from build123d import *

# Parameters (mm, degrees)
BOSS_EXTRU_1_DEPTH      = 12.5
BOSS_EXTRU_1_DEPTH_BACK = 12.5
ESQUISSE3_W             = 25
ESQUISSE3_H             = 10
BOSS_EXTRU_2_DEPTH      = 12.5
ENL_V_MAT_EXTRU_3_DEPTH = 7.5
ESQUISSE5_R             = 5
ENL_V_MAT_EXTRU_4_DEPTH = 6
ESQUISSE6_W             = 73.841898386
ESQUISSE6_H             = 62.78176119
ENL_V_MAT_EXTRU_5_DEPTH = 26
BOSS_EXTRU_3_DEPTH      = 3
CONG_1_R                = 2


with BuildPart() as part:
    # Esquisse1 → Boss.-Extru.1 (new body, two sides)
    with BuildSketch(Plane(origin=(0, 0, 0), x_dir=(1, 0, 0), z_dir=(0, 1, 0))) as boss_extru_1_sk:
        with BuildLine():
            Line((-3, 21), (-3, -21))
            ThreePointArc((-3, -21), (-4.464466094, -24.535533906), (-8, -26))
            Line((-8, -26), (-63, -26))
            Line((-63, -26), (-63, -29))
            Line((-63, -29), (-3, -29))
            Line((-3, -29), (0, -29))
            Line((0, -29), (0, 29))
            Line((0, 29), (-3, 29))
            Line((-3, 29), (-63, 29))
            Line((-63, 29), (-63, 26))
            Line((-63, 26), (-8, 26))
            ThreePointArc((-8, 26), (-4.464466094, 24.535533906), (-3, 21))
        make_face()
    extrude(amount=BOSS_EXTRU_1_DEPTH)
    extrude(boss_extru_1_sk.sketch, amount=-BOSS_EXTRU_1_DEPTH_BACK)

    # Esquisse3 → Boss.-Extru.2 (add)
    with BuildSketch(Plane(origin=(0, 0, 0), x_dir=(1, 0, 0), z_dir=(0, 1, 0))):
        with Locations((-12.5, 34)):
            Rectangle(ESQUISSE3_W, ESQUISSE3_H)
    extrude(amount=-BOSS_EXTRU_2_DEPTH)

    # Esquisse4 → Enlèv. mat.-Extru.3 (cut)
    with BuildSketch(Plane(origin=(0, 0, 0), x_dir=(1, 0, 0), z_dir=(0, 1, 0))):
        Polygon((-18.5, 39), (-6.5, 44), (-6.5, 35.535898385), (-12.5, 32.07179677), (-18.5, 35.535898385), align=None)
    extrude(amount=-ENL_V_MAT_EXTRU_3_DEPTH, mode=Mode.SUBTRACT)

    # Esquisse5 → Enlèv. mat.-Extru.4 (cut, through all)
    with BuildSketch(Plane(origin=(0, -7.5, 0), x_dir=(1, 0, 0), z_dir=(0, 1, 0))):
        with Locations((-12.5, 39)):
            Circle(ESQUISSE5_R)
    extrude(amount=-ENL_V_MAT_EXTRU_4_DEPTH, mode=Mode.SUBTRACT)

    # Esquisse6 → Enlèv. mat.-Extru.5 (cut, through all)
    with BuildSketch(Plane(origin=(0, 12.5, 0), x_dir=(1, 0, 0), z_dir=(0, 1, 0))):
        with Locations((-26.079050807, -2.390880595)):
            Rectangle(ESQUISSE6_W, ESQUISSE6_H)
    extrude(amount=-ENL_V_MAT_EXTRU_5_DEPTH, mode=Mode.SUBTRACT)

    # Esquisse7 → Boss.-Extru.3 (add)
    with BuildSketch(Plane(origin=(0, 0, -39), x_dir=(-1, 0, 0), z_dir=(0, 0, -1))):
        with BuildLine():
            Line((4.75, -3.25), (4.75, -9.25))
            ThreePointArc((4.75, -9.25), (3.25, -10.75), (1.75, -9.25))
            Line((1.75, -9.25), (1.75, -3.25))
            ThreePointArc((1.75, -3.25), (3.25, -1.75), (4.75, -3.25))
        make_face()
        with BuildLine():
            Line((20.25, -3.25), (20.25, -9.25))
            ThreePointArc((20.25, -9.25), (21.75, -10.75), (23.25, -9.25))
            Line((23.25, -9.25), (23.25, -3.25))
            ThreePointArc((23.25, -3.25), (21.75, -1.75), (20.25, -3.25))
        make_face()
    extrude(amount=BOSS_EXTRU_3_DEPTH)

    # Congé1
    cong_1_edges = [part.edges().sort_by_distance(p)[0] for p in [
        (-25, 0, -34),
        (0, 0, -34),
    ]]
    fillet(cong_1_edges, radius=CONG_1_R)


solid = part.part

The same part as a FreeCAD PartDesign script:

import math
import FreeCAD as App
import Part
import Sketcher
from FreeCAD import Vector
Q = App.Units.Quantity


def edges_at(feature, points):
    """Names of the edges that pass closest to the given points."""
    edges = feature.Shape.Edges
    near = lambda p: min(range(len(edges)), key=lambda i: edges[i].distToShape(Part.Vertex(*p))[0])
    return sorted({f"Edge{near(p) + 1}" for p in points})

doc = App.newDocument("Part")
params = doc.addObject("Spreadsheet::Sheet", "Params")
for row, (alias, value) in enumerate([
    ("sketch1_radius", "5 mm"),
    ("sketch1_width", "55 mm"),
    ("sketch1_width2", "63 mm"),
    ("sketch1_height", "42 mm"),
    ("sketch1_height2", "3 mm"),
    ("pad1_length", "12.5 mm"),
    ("pad1_length2", "12.5 mm"),
    ("sketch2_width", "25 mm"),
    ("sketch2_height", "10 mm"),
    ("pad2_length", "12.5 mm"),
    ("sketch3_length", "13 mm"),
    ("pocket1_length", "7.5 mm"),
    ("sketch4_diameter", "10 mm"),
    ("sketch6_radius", "1.5 mm"),
    ("sketch6_height", "6 mm"),
    ("pad3_length", "3 mm"),
    ("fillet_radius", "2 mm"),
], start=1):
    params.set(f"A{row}", alias)
    params.set(f"B{row}", "=" + value)
    params.setAlias(f"B{row}", alias)

body = doc.addObject("PartDesign::Body", "Body")

# Sketch on XZ plane
sketch1 = body.newObject("Sketcher::SketchObject", "Sketch")
sketch1.AttachmentSupport = (doc.getObject("XZ_Plane"), [""])
sketch1.MapMode = "FlatFace"
sketch1.addGeometry([
    Part.LineSegment(Vector(-3, -21, 0), Vector(-3, 21, 0)),  # 0
    Part.ArcOfCircle(Part.Circle(Vector(-8, 21, 0), Vector(0, 0, 1), 5), math.radians(0), math.radians(90)),  # 1
    Part.LineSegment(Vector(-8, 26, 0), Vector(-63, 26, 0)),  # 2
    Part.LineSegment(Vector(-63, 26, 0), Vector(-63, 29, 0)),  # 3
    Part.LineSegment(Vector(-63, 29, 0), Vector(0, 29, 0)),  # 4
    Part.LineSegment(Vector(0, 29, 0), Vector(0, -29, 0)),  # 5
    Part.LineSegment(Vector(0, -29, 0), Vector(-63, -29, 0)),  # 6
    Part.LineSegment(Vector(-63, -29, 0), Vector(-63, -26, 0)),  # 7
    Part.LineSegment(Vector(-63, -26, 0), Vector(-8, -26, 0)),  # 8
    Part.ArcOfCircle(Part.Circle(Vector(-8, -21, 0), Vector(0, 0, 1), 5), math.radians(-90), math.radians(0)),  # 9
], False)
sketch1.addConstraint([
    Sketcher.Constraint("Tangent", 0, 2, 1, 1),
    Sketcher.Constraint("Tangent", 1, 2, 2, 1),
    Sketcher.Constraint("Coincident", 2, 2, 3, 1),
    Sketcher.Constraint("Coincident", 3, 2, 4, 1),
    Sketcher.Constraint("Coincident", 4, 2, 5, 1),
    Sketcher.Constraint("Coincident", 5, 2, 6, 1),
    Sketcher.Constraint("Coincident", 6, 2, 7, 1),
    Sketcher.Constraint("Coincident", 7, 2, 8, 1),
    Sketcher.Constraint("Tangent", 8, 2, 9, 1),
    Sketcher.Constraint("Tangent", 9, 2, 0, 1),
    Sketcher.Constraint("Vertical", 0),
    Sketcher.Constraint("Horizontal", 2),
    Sketcher.Constraint("Vertical", 3),
    Sketcher.Constraint("Horizontal", 4),
    Sketcher.Constraint("Vertical", 5),
    Sketcher.Constraint("Horizontal", 6),
    Sketcher.Constraint("Vertical", 7),
    Sketcher.Constraint("Horizontal", 8),
    Sketcher.Constraint("Equal", 1, 9),
    Sketcher.Constraint("Symmetric", 4, 2, 5, 2, -1, 1),
    Sketcher.Constraint("Symmetric", 2, 2, 7, 2, -1),
    Sketcher.Constraint("Radius", 1, Q("5 mm")),
    Sketcher.Constraint("DistanceX", 2, 2, 2, 1, Q("55 mm")),
    Sketcher.Constraint("DistanceX", 4, 1, 4, 2, Q("63 mm")),
    Sketcher.Constraint("DistanceY", 0, 1, 0, 2, Q("42 mm")),
    Sketcher.Constraint("DistanceY", 3, 1, 3, 2, Q("3 mm")),
])
sketch1.setExpression("Constraints[21]", "Params.sketch1_radius")
sketch1.setExpression("Constraints[22]", "Params.sketch1_width")
sketch1.setExpression("Constraints[23]", "Params.sketch1_width2")
sketch1.setExpression("Constraints[24]", "Params.sketch1_height")
sketch1.setExpression("Constraints[25]", "Params.sketch1_height2")
pad1 = body.newObject("PartDesign::Pad", "Pad")
pad1.Profile = sketch1
pad1.Type = "TwoLengths"
pad1.setExpression("Length", "Params.pad1_length")
pad1.setExpression("Length2", "Params.pad1_length2")
pad1.Reversed = True

# Sketch on XZ plane
sketch2 = body.newObject("Sketcher::SketchObject", "Sketch001")
sketch2.AttachmentSupport = (doc.getObject("XZ_Plane"), [""])
sketch2.MapMode = "FlatFace"
sketch2.addGeometry([
    Part.LineSegment(Vector(-25, -39, 0), Vector(-25, -29, 0)),
    Part.LineSegment(Vector(-25, -29, 0), Vector(0, -29, 0)),
    Part.LineSegment(Vector(0, -29, 0), Vector(0, -39, 0)),
    Part.LineSegment(Vector(0, -39, 0), Vector(-25, -39, 0)),
], False)
sketch2.addConstraint([
    Sketcher.Constraint("Coincident", 0, 2, 1, 1),
    Sketcher.Constraint("Coincident", 1, 2, 2, 1),
    Sketcher.Constraint("Coincident", 2, 2, 3, 1),
    Sketcher.Constraint("Coincident", 3, 2, 0, 1),
    Sketcher.Constraint("Vertical", 0),
    Sketcher.Constraint("Horizontal", 1),
    Sketcher.Constraint("Vertical", 2),
    Sketcher.Constraint("Horizontal", 3),
    Sketcher.Constraint("PointOnObject", 1, 2, -2),
    Sketcher.Constraint("DistanceX", 1, 1, 1, 2, Q("25 mm")),
    Sketcher.Constraint("DistanceY", 0, 1, 0, 2, Q("10 mm")),
    Sketcher.Constraint("DistanceY", 0, 2, -1, 1, Q("29 mm")),
])
sketch2.setExpression("Constraints[9]", "Params.sketch2_width")
sketch2.setExpression("Constraints[10]", "Params.sketch2_height")
pad2 = body.newObject("PartDesign::Pad", "Pad001")
pad2.Profile = sketch2
pad2.setExpression("Length", "Params.pad2_length")

# Sketch on XZ plane
sketch3 = body.newObject("Sketcher::SketchObject", "Sketch002")
sketch3.AttachmentSupport = (doc.getObject("XZ_Plane"), [""])
sketch3.MapMode = "FlatFace"
sketch3.addGeometry([
    Part.LineSegment(Vector(-6.5, -44, 0), Vector(-18.5, -39, 0)),  # 0
    Part.LineSegment(Vector(-18.5, -39, 0), Vector(-18.5, -35.5, 0)),  # 1
    Part.LineSegment(Vector(-18.5, -35.5, 0), Vector(-12.5, -32.1, 0)),  # 2
    Part.LineSegment(Vector(-12.5, -32.1, 0), Vector(-6.5, -35.5, 0)),  # 3
    Part.LineSegment(Vector(-6.5, -35.5, 0), Vector(-6.5, -44, 0)),  # 4
], False)
sketch3.addConstraint([
    Sketcher.Constraint("Coincident", 0, 2, 1, 1),
    Sketcher.Constraint("Coincident", 1, 2, 2, 1),
    Sketcher.Constraint("Coincident", 2, 2, 3, 1),
    Sketcher.Constraint("Coincident", 3, 2, 4, 1),
    Sketcher.Constraint("Coincident", 4, 2, 0, 1),
    Sketcher.Constraint("Vertical", 1),
    Sketcher.Constraint("Vertical", 4),
    Sketcher.Constraint("Horizontal", 1, 2, 3, 2),
    Sketcher.Constraint("Equal", 2, 3),
    Sketcher.Constraint("Angle", 2, Q("30 deg")),
    Sketcher.Constraint("Distance", 0, Q("13 mm")),
    Sketcher.Constraint("DistanceY", 0, 2, -1, 1, Q("39 mm")),
    Sketcher.Constraint("DistanceY", 4, 2, -1, 1, Q("44 mm")),
    Sketcher.Constraint("DistanceX", 0, 2, -1, 1, Q("18.5 mm")),
    Sketcher.Constraint("DistanceY", 1, 1, 1, 2, Q("3.464102 mm")),
])
sketch3.setExpression("Constraints[10]", "Params.sketch3_length")
pocket1 = body.newObject("PartDesign::Pocket", "Pocket")
pocket1.Profile = sketch3
pocket1.setExpression("Length", "Params.pocket1_length")
pocket1.Reversed = True

# Sketch on XZ plane
sketch4 = body.newObject("Sketcher::SketchObject", "Sketch003")
sketch4.AttachmentSupport = (doc.getObject("XZ_Plane"), [""])
sketch4.MapMode = "FlatFace"
sketch4.AttachmentOffset = App.Placement(Vector(0, 0, 7.5), App.Rotation())
sketch4.addGeometry(Part.Circle(Vector(-12, -39, 0), Vector(0, 0, 1), 5), False)
sketch4.addConstraint([
    Sketcher.Constraint("Diameter", 0, Q("10 mm")),
    Sketcher.Constraint("DistanceY", 0, 3, -1, 1, Q("39 mm")),
    Sketcher.Constraint("DistanceX", 0, 3, -1, 1, Q("12.5 mm")),
])
sketch4.setExpression("Constraints[0]", "Params.sketch4_diameter")
pocket2 = body.newObject("PartDesign::Pocket", "Pocket001")
pocket2.Profile = sketch4
pocket2.Type = "ThroughAll"
pocket2.Reversed = True

# Sketch on XZ plane
sketch5 = body.newObject("Sketcher::SketchObject", "Sketch004")
sketch5.AttachmentSupport = (doc.getObject("XZ_Plane"), [""])
sketch5.MapMode = "FlatFace"
sketch5.AttachmentOffset = App.Placement(Vector(0, 0, -12.5), App.Rotation())
sketch5.addGeometry([
    Part.LineSegment(Vector(-63, -29, 0), Vector(-63, 34, 0)),
    Part.LineSegment(Vector(-63, 34, 0), Vector(11, 34, 0)),
    Part.LineSegment(Vector(11, 34, 0), Vector(11, -29, 0)),
    Part.LineSegment(Vector(11, -29, 0), Vector(-63, -29, 0)),
], False)
sketch5.addConstraint([
    Sketcher.Constraint("Coincident", 0, 2, 1, 1),
    Sketcher.Constraint("Coincident", 1, 2, 2, 1),
    Sketcher.Constraint("Coincident", 2, 2, 3, 1),
    Sketcher.Constraint("Coincident", 3, 2, 0, 1),
    Sketcher.Constraint("Vertical", 0),
    Sketcher.Constraint("Horizontal", 1),
    Sketcher.Constraint("Vertical", 2),
    Sketcher.Constraint("Horizontal", 3),
    Sketcher.Constraint("DistanceX", 0, 2, -1, 1, Q("63 mm")),
    Sketcher.Constraint("DistanceY", 2, 2, -1, 1, Q("29 mm")),
    Sketcher.Constraint("DistanceX", 1, 1, 1, 2, Q("73.841898 mm")),
    Sketcher.Constraint("DistanceY", 0, 1, 0, 2, Q("62.781761 mm")),
])
pocket3 = body.newObject("PartDesign::Pocket", "Pocket002")
pocket3.Profile = sketch5
pocket3.Type = "ThroughAll"
pocket3.Reversed = True

# Sketch on XY plane
sketch6 = body.newObject("Sketcher::SketchObject", "Sketch005")
sketch6.AttachmentSupport = (doc.getObject("XY_Plane"), [""])
sketch6.MapMode = "FlatFace"
sketch6.AttachmentOffset = App.Placement(Vector(0, 0, -39), App.Rotation())
sketch6.addGeometry([
    Part.LineSegment(Vector(-4.8, -9.2, 0), Vector(-4.8, -3.2, 0)),  # 0
    Part.ArcOfCircle(Part.Circle(Vector(-3.2, -3.2, 0), Vector(0, 0, 1), 1.5), math.radians(0), math.radians(180)),  # 1
    Part.LineSegment(Vector(-1.8, -3.2, 0), Vector(-1.8, -9.2, 0)),  # 2
    Part.ArcOfCircle(Part.Circle(Vector(-3.2, -9.2, 0), Vector(0, 0, 1), 1.5), math.radians(180), math.radians(360)),  # 3
    Part.LineSegment(Vector(-20.2, -3.2, 0), Vector(-20.2, -9.2, 0)),  # 4
    Part.ArcOfCircle(Part.Circle(Vector(-21.8, -9.2, 0), Vector(0, 0, 1), 1.5), math.radians(180), math.radians(360)),  # 5
    Part.LineSegment(Vector(-23.2, -9.2, 0), Vector(-23.2, -3.2, 0)),  # 6
    Part.ArcOfCircle(Part.Circle(Vector(-21.8, -3.2, 0), Vector(0, 0, 1), 1.5), math.radians(0), math.radians(180)),  # 7
], False)
sketch6.addConstraint([
    Sketcher.Constraint("Tangent", 0, 2, 1, 2),
    Sketcher.Constraint("Tangent", 1, 1, 2, 1),
    Sketcher.Constraint("Tangent", 2, 2, 3, 2),
    Sketcher.Constraint("Tangent", 3, 1, 0, 1),
    Sketcher.Constraint("Tangent", 4, 2, 5, 2),
    Sketcher.Constraint("Tangent", 5, 1, 6, 1),
    Sketcher.Constraint("Tangent", 6, 2, 7, 2),
    Sketcher.Constraint("Tangent", 7, 1, 4, 1),
    Sketcher.Constraint("Vertical", 0),
    Sketcher.Constraint("Vertical", 2),
    Sketcher.Constraint("Vertical", 4),
    Sketcher.Constraint("Vertical", 6),
    Sketcher.Constraint("Equal", 3, 5),
    Sketcher.Constraint("Horizontal", 3, 3, 5, 3),
    Sketcher.Constraint("Horizontal", 1, 3, 7, 3),
    Sketcher.Constraint("Radius", 1, Q("1.5 mm")),
    Sketcher.Constraint("DistanceY", 0, 1, 0, 2, Q("6 mm")),
    Sketcher.Constraint("DistanceX", 7, 3, 0, 2, Q("17 mm")),
    Sketcher.Constraint("DistanceX", 1, 3, -1, 1, Q("3.25 mm")),
    Sketcher.Constraint("DistanceY", 1, 3, -1, 1, Q("3.25 mm")),
])
sketch6.setExpression("Constraints[15]", "Params.sketch6_radius")
sketch6.setExpression("Constraints[16]", "Params.sketch6_height")
pad3 = body.newObject("PartDesign::Pad", "Pad002")
pad3.Profile = sketch6
pad3.setExpression("Length", "Params.pad3_length")
pad3.Reversed = True
doc.recompute()

fillet = body.newObject("PartDesign::Fillet", "Fillet")
fillet.Base = (pad3, edges_at(pad3, [(-25, 0, -34), (0, 0, -34)]))
fillet.setExpression("Radius", "Params.fillet_radius")

doc.recompute()
